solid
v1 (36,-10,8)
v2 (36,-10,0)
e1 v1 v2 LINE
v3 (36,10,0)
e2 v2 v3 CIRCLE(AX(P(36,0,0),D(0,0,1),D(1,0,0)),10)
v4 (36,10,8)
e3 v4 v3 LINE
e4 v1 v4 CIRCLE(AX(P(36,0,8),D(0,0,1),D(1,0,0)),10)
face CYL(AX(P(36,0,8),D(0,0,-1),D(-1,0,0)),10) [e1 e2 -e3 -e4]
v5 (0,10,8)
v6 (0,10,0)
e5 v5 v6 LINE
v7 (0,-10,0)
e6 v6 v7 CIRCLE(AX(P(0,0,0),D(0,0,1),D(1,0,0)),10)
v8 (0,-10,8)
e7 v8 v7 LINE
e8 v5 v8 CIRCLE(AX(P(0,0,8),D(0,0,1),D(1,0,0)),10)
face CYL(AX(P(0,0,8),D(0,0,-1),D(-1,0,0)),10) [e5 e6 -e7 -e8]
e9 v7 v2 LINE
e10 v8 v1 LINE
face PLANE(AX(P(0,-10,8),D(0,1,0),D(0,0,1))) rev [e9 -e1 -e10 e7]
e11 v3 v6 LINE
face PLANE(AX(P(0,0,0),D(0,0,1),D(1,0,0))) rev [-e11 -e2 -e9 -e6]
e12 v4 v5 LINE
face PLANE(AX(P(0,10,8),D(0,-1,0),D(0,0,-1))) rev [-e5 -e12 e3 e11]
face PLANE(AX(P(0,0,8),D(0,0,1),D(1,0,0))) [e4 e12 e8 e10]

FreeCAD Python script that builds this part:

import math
import FreeCAD as App
import Part
import Sketcher

V = App.Vector
Q = App.Units.Quantity

doc = App.newDocument("Part")
body = doc.addObject("PartDesign::Body", "Body")

# Sketch on XY plane
sketch1 = body.newObject("Sketcher::SketchObject", "Sketch")
sketch1.AttachmentSupport = (doc.getObject("XY_Plane"), [""])
sketch1.MapMode = "FlatFace"
sketch1.addGeometry(Part.LineSegment(V(36, 10, 0), V(0, 10, 0)), False)
sketch1.addGeometry(Part.ArcOfCircle(Part.Circle(V(0, 0, 0), V(0, 0, 1), 10), math.radians(90), math.radians(270)), False)
sketch1.addGeometry(Part.LineSegment(V(0, -10, 0), V(36, -10, 0)), False)
sketch1.addGeometry(Part.ArcOfCircle(Part.Circle(V(36, 0, 0), V(0, 0, 1), 10), math.radians(-90), math.radians(90)), False)
sketch1.addConstraint(Sketcher.Constraint("Tangent", 0, 2, 1, 1))
sketch1.addConstraint(Sketcher.Constraint("Tangent", 1, 2, 2, 1))
sketch1.addConstraint(Sketcher.Constraint("Tangent", 2, 2, 3, 1))
sketch1.addConstraint(Sketcher.Constraint("Tangent", 3, 2, 0, 1))
sketch1.addConstraint(Sketcher.Constraint("Horizontal", 0))
sketch1.addConstraint(Sketcher.Constraint("Horizontal", 2))
sketch1.addConstraint(Sketcher.Constraint("Coincident", 1, 3, -1, 1))
sketch1.addConstraint(Sketcher.Constraint("Radius", 1, Q("10 mm")))
sketch1.addConstraint(Sketcher.Constraint("DistanceX", 0, 2, 0, 1, Q("36 mm")))
pad1 = body.newObject("PartDesign::Pad", "Pad")
pad1.Profile = sketch1
pad1.Length = 8

doc.recompute()
